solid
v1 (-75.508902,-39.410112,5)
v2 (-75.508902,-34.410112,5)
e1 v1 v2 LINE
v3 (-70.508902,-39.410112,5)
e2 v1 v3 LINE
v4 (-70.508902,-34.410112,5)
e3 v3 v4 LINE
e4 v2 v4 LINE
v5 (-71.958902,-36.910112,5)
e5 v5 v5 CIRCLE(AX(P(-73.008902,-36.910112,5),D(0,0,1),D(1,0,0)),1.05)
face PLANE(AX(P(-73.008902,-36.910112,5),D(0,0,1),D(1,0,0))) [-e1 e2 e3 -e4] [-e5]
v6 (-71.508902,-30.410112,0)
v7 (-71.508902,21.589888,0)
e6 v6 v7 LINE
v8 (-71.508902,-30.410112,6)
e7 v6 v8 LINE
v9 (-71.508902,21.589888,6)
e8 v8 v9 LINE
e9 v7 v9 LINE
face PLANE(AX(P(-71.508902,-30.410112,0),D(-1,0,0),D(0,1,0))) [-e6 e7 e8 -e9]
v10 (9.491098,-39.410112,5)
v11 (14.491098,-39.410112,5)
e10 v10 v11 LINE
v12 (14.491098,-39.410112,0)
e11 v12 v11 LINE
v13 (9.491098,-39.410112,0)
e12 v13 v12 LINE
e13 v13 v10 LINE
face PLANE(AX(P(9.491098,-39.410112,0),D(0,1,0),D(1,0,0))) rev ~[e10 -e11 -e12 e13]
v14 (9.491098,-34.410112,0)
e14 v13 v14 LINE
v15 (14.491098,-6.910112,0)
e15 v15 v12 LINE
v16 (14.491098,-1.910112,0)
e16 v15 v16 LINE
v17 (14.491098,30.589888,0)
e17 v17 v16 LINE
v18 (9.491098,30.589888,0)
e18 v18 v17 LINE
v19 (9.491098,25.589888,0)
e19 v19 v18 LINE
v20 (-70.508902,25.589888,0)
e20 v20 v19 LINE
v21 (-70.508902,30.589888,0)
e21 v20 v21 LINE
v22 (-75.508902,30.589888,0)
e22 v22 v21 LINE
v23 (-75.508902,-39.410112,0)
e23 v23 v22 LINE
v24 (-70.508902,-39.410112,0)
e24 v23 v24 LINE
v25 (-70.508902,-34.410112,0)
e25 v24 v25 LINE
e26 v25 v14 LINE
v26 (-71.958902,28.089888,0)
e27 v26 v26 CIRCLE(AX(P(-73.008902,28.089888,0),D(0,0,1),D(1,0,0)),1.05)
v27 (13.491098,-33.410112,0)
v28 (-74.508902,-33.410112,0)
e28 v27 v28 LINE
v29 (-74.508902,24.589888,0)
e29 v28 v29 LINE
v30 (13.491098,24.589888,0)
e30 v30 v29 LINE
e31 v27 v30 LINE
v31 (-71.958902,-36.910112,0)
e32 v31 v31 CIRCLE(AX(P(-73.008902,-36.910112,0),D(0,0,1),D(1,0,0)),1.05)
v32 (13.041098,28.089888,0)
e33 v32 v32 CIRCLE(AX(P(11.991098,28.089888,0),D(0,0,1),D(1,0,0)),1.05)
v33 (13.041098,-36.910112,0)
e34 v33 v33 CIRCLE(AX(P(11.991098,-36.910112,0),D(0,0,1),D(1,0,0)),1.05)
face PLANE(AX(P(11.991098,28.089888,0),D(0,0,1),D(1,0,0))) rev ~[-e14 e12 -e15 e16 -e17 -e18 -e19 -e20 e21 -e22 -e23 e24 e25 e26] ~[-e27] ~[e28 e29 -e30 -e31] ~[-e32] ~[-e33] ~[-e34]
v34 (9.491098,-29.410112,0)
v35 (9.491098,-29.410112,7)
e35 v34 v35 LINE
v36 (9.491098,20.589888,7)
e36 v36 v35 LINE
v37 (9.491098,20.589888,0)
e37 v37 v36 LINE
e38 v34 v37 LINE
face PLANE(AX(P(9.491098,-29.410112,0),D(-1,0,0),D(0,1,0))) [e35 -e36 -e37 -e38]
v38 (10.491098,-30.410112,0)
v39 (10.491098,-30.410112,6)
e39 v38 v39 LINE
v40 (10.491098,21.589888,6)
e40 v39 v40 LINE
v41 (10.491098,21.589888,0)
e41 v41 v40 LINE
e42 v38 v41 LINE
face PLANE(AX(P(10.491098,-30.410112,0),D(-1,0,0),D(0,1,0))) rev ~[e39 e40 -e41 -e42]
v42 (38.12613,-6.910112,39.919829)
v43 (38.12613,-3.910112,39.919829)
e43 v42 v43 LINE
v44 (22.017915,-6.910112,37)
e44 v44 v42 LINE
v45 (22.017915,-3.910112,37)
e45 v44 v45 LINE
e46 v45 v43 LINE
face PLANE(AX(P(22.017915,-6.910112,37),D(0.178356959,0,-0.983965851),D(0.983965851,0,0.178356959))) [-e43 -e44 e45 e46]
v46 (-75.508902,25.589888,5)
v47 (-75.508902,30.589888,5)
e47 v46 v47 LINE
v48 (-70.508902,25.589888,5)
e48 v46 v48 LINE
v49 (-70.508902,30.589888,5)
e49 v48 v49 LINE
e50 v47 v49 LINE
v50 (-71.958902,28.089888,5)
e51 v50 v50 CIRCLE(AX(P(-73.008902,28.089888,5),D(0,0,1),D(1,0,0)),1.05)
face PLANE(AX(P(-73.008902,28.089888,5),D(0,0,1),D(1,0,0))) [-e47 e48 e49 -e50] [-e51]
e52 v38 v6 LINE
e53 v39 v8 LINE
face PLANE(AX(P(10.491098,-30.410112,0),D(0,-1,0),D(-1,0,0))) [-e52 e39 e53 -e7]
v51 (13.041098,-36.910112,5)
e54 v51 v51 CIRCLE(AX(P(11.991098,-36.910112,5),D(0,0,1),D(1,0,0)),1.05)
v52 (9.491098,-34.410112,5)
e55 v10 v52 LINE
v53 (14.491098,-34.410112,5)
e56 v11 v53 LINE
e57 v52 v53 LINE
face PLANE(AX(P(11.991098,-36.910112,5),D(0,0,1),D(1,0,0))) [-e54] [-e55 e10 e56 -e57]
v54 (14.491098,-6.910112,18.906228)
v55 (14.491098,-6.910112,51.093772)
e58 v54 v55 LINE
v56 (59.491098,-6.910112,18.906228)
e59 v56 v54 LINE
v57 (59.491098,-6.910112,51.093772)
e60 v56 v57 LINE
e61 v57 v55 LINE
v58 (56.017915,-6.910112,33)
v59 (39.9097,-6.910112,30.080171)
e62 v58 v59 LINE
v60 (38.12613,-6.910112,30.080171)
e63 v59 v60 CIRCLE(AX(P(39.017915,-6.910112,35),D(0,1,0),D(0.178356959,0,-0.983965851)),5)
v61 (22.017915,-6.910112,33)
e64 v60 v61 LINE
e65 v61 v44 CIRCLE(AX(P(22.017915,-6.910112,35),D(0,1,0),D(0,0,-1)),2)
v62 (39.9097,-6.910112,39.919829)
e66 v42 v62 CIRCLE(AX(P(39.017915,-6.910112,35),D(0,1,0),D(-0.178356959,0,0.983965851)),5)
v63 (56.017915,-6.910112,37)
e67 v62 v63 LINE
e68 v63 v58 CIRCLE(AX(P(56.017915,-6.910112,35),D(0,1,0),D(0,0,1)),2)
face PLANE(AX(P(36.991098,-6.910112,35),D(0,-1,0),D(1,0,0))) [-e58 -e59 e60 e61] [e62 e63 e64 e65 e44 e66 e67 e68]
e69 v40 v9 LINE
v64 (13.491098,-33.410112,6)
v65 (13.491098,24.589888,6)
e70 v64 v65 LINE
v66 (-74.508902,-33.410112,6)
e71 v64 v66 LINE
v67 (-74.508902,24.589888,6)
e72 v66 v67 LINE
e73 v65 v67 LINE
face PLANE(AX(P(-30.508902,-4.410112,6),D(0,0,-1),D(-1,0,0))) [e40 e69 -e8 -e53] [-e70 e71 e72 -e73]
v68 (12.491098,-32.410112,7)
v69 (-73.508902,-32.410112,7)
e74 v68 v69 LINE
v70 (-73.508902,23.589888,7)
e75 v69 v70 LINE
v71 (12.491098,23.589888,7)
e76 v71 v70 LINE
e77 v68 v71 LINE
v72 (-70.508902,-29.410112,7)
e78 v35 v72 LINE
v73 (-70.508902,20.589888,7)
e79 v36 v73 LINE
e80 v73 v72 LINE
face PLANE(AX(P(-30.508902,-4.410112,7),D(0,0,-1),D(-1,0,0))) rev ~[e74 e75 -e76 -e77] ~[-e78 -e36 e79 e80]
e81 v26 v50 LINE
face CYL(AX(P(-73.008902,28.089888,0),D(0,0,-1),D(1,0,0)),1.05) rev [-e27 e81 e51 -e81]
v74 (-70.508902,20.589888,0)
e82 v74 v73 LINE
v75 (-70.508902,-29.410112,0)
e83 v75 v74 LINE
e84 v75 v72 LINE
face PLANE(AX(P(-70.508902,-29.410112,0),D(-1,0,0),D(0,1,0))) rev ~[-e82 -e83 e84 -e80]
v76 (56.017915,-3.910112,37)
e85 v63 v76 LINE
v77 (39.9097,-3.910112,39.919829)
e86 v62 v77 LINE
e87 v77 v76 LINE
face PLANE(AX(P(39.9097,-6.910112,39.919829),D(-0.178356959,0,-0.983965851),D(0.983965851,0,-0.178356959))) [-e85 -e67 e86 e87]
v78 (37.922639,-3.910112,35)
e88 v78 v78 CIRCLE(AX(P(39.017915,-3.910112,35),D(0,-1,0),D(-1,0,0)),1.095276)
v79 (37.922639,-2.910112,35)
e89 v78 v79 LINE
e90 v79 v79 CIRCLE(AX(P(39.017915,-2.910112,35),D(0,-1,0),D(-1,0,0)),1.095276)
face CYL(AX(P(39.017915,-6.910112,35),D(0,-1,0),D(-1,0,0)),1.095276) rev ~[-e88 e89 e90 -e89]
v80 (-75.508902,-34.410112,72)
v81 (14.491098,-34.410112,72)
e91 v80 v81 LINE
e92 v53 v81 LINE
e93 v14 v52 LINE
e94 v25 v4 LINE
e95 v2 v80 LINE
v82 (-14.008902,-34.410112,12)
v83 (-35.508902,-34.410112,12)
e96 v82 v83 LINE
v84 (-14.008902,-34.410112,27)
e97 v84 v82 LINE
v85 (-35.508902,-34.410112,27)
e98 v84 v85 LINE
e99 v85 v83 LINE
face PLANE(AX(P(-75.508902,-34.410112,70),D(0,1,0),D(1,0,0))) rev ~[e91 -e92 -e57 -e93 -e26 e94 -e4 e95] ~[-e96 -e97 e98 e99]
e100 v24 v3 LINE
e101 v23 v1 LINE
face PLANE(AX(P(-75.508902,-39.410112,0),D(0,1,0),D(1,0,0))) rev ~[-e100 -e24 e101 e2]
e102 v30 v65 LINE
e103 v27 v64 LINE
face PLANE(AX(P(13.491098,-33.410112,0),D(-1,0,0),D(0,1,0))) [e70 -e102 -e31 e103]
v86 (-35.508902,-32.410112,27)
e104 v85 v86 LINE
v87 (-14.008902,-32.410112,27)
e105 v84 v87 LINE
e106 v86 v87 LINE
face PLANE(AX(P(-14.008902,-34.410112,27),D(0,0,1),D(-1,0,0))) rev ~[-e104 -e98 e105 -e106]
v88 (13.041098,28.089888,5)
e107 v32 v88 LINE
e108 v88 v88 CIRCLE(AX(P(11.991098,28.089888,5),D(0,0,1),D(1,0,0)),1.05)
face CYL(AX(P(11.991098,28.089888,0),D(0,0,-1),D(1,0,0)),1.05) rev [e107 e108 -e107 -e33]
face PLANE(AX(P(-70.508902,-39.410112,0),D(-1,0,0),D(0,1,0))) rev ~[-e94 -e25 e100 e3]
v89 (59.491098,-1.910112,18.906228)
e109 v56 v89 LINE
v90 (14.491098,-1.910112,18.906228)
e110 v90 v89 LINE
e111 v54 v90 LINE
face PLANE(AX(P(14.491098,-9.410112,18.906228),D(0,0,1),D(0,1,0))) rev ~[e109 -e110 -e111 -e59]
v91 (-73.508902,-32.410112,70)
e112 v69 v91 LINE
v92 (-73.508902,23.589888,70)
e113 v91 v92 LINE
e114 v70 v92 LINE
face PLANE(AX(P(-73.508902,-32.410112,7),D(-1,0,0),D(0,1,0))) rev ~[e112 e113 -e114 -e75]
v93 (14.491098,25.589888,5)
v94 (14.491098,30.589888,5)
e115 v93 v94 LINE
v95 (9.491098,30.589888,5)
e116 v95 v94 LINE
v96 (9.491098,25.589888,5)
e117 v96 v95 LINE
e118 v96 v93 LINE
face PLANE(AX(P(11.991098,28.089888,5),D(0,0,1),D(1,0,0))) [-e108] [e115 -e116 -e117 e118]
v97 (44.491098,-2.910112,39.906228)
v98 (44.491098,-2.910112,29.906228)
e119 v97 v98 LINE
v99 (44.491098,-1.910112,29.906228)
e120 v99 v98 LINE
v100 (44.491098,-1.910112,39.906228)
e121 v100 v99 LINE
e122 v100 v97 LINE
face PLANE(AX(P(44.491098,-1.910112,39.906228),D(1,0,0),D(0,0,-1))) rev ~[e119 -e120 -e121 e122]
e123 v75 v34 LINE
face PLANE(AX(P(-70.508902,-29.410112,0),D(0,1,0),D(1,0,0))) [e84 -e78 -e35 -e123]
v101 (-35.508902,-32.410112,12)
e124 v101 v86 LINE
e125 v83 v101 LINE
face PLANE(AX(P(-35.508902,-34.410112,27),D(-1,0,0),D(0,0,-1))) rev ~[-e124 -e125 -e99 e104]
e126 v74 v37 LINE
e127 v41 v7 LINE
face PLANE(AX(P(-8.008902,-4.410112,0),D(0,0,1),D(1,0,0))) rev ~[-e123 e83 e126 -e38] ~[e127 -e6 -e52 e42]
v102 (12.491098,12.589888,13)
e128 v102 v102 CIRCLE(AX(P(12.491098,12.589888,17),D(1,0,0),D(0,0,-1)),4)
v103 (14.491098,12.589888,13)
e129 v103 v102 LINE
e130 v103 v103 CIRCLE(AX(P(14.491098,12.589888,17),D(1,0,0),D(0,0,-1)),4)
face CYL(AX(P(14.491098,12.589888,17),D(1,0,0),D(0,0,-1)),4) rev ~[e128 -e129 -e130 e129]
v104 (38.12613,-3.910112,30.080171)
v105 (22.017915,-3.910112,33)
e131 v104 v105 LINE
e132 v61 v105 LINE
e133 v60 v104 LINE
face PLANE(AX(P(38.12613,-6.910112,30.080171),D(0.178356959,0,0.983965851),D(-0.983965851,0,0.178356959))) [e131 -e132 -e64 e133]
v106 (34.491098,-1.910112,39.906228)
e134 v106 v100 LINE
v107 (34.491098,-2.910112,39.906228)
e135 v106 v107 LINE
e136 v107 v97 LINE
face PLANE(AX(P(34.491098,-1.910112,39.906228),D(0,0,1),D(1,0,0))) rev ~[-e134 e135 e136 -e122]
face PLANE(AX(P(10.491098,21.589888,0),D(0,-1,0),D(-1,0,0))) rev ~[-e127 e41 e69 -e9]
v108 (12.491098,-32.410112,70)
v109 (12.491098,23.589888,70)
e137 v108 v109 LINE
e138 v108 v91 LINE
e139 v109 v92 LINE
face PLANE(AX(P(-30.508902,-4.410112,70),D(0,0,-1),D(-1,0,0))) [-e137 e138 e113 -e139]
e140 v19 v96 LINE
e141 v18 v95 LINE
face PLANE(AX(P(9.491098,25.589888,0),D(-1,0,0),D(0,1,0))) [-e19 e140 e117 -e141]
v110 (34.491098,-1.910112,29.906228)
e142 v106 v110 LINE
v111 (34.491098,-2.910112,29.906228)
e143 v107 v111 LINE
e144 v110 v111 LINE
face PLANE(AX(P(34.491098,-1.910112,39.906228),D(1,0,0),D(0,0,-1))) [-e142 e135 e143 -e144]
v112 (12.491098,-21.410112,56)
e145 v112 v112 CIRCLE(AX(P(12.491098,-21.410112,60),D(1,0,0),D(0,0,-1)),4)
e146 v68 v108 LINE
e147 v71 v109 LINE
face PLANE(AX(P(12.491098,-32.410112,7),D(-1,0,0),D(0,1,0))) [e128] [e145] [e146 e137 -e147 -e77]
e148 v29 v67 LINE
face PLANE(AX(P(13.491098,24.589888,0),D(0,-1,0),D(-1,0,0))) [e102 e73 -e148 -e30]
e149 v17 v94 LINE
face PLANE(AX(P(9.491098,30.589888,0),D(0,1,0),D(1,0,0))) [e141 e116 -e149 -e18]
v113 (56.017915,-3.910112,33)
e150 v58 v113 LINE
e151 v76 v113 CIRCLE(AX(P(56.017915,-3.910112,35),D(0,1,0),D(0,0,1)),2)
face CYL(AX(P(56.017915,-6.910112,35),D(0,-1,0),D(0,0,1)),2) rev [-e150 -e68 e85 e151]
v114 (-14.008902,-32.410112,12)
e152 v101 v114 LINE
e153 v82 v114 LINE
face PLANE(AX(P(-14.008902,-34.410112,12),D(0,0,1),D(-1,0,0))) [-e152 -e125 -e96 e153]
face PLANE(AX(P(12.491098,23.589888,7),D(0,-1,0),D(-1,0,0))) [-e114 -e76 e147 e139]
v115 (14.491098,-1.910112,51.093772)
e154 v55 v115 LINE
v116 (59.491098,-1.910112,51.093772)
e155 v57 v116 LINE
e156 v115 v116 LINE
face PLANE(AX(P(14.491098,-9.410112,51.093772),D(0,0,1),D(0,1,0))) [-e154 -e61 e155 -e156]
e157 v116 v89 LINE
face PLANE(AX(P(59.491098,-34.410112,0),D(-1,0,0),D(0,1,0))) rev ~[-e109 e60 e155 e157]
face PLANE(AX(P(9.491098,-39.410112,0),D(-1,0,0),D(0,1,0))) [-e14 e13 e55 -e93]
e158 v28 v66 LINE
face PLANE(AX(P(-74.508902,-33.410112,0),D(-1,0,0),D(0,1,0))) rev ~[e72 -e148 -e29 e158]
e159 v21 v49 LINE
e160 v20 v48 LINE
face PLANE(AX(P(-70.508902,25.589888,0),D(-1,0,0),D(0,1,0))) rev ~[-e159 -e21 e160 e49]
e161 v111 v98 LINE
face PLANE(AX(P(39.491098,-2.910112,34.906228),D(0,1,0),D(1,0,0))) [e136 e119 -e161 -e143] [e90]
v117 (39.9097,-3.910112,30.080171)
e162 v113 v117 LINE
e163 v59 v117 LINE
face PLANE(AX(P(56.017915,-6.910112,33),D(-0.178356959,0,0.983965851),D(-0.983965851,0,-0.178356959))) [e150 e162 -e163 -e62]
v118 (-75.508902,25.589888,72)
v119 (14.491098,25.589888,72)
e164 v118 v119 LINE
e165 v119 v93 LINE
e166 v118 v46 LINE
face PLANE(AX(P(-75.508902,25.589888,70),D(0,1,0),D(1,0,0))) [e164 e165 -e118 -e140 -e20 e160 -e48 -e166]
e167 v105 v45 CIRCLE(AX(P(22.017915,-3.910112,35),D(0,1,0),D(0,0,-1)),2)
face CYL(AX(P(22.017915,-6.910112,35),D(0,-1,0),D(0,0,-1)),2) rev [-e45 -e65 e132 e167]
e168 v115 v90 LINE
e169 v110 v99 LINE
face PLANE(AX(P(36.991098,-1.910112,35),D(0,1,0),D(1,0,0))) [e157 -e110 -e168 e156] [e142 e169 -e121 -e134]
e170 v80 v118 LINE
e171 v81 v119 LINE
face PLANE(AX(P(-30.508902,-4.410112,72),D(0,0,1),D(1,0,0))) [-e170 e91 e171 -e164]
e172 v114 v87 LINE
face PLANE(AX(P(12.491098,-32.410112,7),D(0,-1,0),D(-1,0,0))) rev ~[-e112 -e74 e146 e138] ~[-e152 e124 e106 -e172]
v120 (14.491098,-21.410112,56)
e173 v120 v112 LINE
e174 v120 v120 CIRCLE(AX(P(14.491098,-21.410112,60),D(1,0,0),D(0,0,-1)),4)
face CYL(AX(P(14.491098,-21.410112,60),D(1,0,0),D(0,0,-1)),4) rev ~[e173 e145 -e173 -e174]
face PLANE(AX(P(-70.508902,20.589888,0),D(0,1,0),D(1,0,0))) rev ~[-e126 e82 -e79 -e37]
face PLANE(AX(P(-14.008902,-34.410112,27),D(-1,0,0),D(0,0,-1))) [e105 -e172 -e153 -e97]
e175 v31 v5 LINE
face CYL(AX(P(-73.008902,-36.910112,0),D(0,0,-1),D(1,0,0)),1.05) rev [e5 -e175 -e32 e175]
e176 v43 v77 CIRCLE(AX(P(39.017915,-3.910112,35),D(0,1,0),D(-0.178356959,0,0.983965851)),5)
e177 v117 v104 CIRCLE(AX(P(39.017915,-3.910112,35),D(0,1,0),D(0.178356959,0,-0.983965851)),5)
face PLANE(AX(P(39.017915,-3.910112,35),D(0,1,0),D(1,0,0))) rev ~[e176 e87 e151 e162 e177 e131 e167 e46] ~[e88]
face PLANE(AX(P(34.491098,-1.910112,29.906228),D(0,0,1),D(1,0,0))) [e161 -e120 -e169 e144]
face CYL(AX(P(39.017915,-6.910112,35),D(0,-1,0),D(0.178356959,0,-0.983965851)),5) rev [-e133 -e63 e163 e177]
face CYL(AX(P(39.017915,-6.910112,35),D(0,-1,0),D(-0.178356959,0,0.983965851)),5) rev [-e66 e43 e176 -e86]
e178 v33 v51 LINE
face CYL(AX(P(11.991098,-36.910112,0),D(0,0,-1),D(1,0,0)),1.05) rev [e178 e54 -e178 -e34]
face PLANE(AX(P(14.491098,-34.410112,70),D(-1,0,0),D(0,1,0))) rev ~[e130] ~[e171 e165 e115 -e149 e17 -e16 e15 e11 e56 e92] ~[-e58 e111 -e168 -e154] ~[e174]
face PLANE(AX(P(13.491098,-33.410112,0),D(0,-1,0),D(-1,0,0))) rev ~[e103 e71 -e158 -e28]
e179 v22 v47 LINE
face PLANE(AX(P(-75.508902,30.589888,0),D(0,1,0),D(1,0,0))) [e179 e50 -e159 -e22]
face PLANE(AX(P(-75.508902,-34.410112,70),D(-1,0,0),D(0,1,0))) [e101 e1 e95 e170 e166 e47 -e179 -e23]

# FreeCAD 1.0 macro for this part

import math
import FreeCAD as App
import Part
import Sketcher

V = App.Vector
Q = App.Units.Quantity

doc = App.newDocument("Part")
body = doc.addObject("PartDesign::Body", "Body")

sketch1 = body.newObject("Sketcher::SketchObject", "Sketch")
sketch1.AttachmentSupport = (doc.getObject("XY_Plane"), [""])
sketch1.MapMode = "FlatFace"
sketch1.addGeometry(Part.LineSegment(V(-75.508902, 25.589888, 0), V(-75.508902, -34.410112, 0)), False)
sketch1.addGeometry(Part.LineSegment(V(-75.508902, -34.410112, 0), V(59.491098, -34.410112, 0)), False)
sketch1.addGeometry(Part.LineSegment(V(59.491098, -34.410112, 0), V(59.491098, 25.589888, 0)), False)
sketch1.addGeometry(Part.LineSegment(V(59.491098, 25.589888, 0), V(-75.508902, 25.589888, 0)), False)
sketch1.addConstraint(Sketcher.Constraint("Coincident", 0, 2, 1, 1))
sketch1.addConstraint(Sketcher.Constraint("Coincident", 1, 2, 2, 1))
sketch1.addConstraint(Sketcher.Constraint("Coincident", 2, 2, 3, 1))
sketch1.addConstraint(Sketcher.Constraint("Coincident", 3, 2, 0, 1))
sketch1.addConstraint(Sketcher.Constraint("Vertical", 0))
sketch1.addConstraint(Sketcher.Constraint("Horizontal", 1))
sketch1.addConstraint(Sketcher.Constraint("Vertical", 2))
sketch1.addConstraint(Sketcher.Constraint("Horizontal", 3))
sketch1.addConstraint(Sketcher.Constraint("DistanceX", 1, 1, 1, 2, Q("135 mm")))
sketch1.addConstraint(Sketcher.Constraint("DistanceY", 0, 2, 0, 1, Q("60 mm")))
sketch1.addConstraint(Sketcher.Constraint("DistanceX", 0, 2, -1, 1, Q("75.508902 mm")))
sketch1.addConstraint(Sketcher.Constraint("DistanceY", 0, 2, -1, 1, Q("34.410112 mm")))
pad1 = body.newObject("PartDesign::Pad", "Pad")
pad1.Profile = sketch1
pad1.Length = 70

sketch2 = body.newObject("Sketcher::SketchObject", "Sketch001")
sketch2.AttachmentSupport = (doc.getObject("XZ_Plane"), [""])
sketch2.MapMode = "FlatFace"
sketch2.AttachmentOffset = App.Placement(V(0, 0, -25.589888), App.Rotation())
sketch2.addGeometry(Part.LineSegment(V(14.491098, 0, 0), V(14.491098, 70, 0)), False)
sketch2.addGeometry(Part.LineSegment(V(14.491098, 70, 0), V(59.491098, 70, 0)), False)
sketch2.addGeometry(Part.LineSegment(V(59.491098, 70, 0), V(59.491098, 0, 0)), False)
sketch2.addGeometry(Part.LineSegment(V(59.491098, 0, 0), V(14.491098, 0, 0)), False)
sketch2.addConstraint(Sketcher.Constraint("Coincident", 0, 2, 1, 1))
sketch2.addConstraint(Sketcher.Constraint("Coincident", 1, 2, 2, 1))
sketch2.addConstraint(Sketcher.Constraint("Coincident", 2, 2, 3, 1))
sketch2.addConstraint(Sketcher.Constraint("Coincident", 3, 2, 0, 1))
sketch2.addConstraint(Sketcher.Constraint("Vertical", 0))
sketch2.addConstraint(Sketcher.Constraint("Horizontal", 1))
sketch2.addConstraint(Sketcher.Constraint("Vertical", 2))
sketch2.addConstraint(Sketcher.Constraint("Horizontal", 3))
sketch2.addConstraint(Sketcher.Constraint("PointOnObject", 2, 2, -1))
sketch2.addConstraint(Sketcher.Constraint("DistanceX", 1, 1, 1, 2, Q("45 mm")))
sketch2.addConstraint(Sketcher.Constraint("DistanceY", 0, 1, 0, 2, Q("70 mm")))
sketch2.addConstraint(Sketcher.Constraint("DistanceX", -1, 1, 0, 2, Q("14.491098 mm")))
pocket1 = body.newObject("PartDesign::Pocket", "Pocket")
pocket1.Profile = sketch2
pocket1.Length = 27.5
pocket1.Reversed = True

sketch3 = body.newObject("Sketcher::SketchObject", "Sketch002")
sketch3.AttachmentSupport = (doc.getObject("XZ_Plane"), [""])
sketch3.MapMode = "FlatFace"
sketch3.AttachmentOffset = App.Placement(V(0, 0, 34.410112), App.Rotation())
sketch3.addGeometry(Part.LineSegment(V(14.491098, 70, 0), V(14.491098, 0, 0)), False)
sketch3.addGeometry(Part.LineSegment(V(14.491098, 0, 0), V(59.491098, 0, 0)), False)
sketch3.addGeometry(Part.LineSegment(V(59.491098, 0, 0), V(59.491098, 70, 0)), False)
sketch3.addGeometry(Part.LineSegment(V(59.491098, 70, 0), V(14.491098, 70, 0)), False)
sketch3.addConstraint(Sketcher.Constraint("Coincident", 0, 2, 1, 1))
sketch3.addConstraint(Sketcher.Constraint("Coincident", 1, 2, 2, 1))
sketch3.addConstraint(Sketcher.Constraint("Coincident", 2, 2, 3, 1))
sketch3.addConstraint(Sketcher.Constraint("Coincident", 3, 2, 0, 1))
sketch3.addConstraint(Sketcher.Constraint("Vertical", 0))
sketch3.addConstraint(Sketcher.Constraint("Horizontal", 1))
sketch3.addConstraint(Sketcher.Constraint("Vertical", 2))
sketch3.addConstraint(Sketcher.Constraint("Horizontal", 3))
sketch3.addConstraint(Sketcher.Constraint("PointOnObject", 0, 2, -1))
sketch3.addConstraint(Sketcher.Constraint("DistanceX", 1, 1, 1, 2, Q("45 mm")))
sketch3.addConstraint(Sketcher.Constraint("DistanceY", 0, 2, 0, 1, Q("70 mm")))
sketch3.addConstraint(Sketcher.Constraint("DistanceX", -1, 1, 0, 2, Q("14.491098 mm")))
pocket2 = body.newObject("PartDesign::Pocket", "Pocket001")
pocket2.Profile = sketch3
pocket2.Length = 27.5

sketch4 = body.newObject("Sketcher::SketchObject", "Sketch003")
sketch4.AttachmentSupport = (doc.getObject("XY_Plane"), [""])
sketch4.MapMode = "FlatFace"
sketch4.addGeometry(Part.LineSegment(V(-70.508902, 20.589888, 0), V(-70.508902, -29.410112, 0)), False)
sketch4.addGeometry(Part.LineSegment(V(-70.508902, -29.410112, 0), V(9.491098, -29.410112, 0)), False)
sketch4.addGeometry(Part.LineSegment(V(9.491098, -29.410112, 0), V(9.491098, 20.589888, 0)), False)
sketch4.addGeometry(Part.LineSegment(V(9.491098, 20.589888, 0), V(-70.508902, 20.589888, 0)), False)
sketch4.addConstraint(Sketcher.Constraint("Coincident", 0, 2, 1, 1))
sketch4.addConstraint(Sketcher.Constraint("Coincident", 1, 2, 2, 1))
sketch4.addConstraint(Sketcher.Constraint("Coincident", 2, 2, 3, 1))
sketch4.addConstraint(Sketcher.Constraint("Coincident", 3, 2, 0, 1))
sketch4.addConstraint(Sketcher.Constraint("Vertical", 0))
sketch4.addConstraint(Sketcher.Constraint("Horizontal", 1))
sketch4.addConstraint(Sketcher.Constraint("Vertical", 2))
sketch4.addConstraint(Sketcher.Constraint("Horizontal", 3))
sketch4.addConstraint(Sketcher.Constraint("DistanceX", 1, 1, 1, 2, Q("80 mm")))
sketch4.addConstraint(Sketcher.Constraint("DistanceY", 0, 2, 0, 1, Q("50 mm")))
sketch4.addConstraint(Sketcher.Constraint("DistanceX", 0, 2, -1, 1, Q("70.508902 mm")))
sketch4.addConstraint(Sketcher.Constraint("DistanceY", 0, 2, -1, 1, Q("29.410112 mm")))
pocket3 = body.newObject("PartDesign::Pocket", "Pocket002")
pocket3.Profile = sketch4
pocket3.Length = 75
pocket3.Reversed = True

sketch5 = body.newObject("Sketcher::SketchObject", "Sketch004")
sketch5.AttachmentSupport = (doc.getObject("XY_Plane"), [""])
sketch5.MapMode = "FlatFace"
sketch5.addGeometry(Part.LineSegment(V(13.491098, 24.589888, 0), V(13.491098, -33.410112, 0)), False)
sketch5.addGeometry(Part.LineSegment(V(13.491098, -33.410112, 0), V(-74.508902, -33.410112, 0)), False)
sketch5.addGeometry(Part.LineSegment(V(-74.508902, -33.410112, 0), V(-74.508902, 24.589888, 0)), False)
sketch5.addGeometry(Part.LineSegment(V(-74.508902, 24.589888, 0), V(13.491098, 24.589888, 0)), False)
sketch5.addGeometry(Part.LineSegment(V(-71.508902, -30.410112, 0), V(10.491098, -30.410112, 0)), False)
sketch5.addGeometry(Part.LineSegment(V(10.491098, -30.410112, 0), V(10.491098, 21.589888, 0)), False)
sketch5.addGeometry(Part.LineSegment(V(10.491098, 21.589888, 0), V(-71.508902, 21.589888, 0)), False)
sketch5.addGeometry(Part.LineSegment(V(-71.508902, 21.589888, 0), V(-71.508902, -30.410112, 0)), False)
sketch5.addConstraint(Sketcher.Constraint("Coincident", 0, 2, 1, 1))
sketch5.addConstraint(Sketcher.Constraint("Coincident", 1, 2, 2, 1))
sketch5.addConstraint(Sketcher.Constraint("Coincident", 2, 2, 3, 1))
sketch5.addConstraint(Sketcher.Constraint("Coincident", 3, 2, 0, 1))
sketch5.addConstraint(Sketcher.Constraint("Coincident", 4, 2, 5, 1))
sketch5.addConstraint(Sketcher.Constraint("Coincident", 5, 2, 6, 1))
sketch5.addConstraint(Sketcher.Constraint("Coincident", 6, 2, 7, 1))
sketch5.addConstraint(Sketcher.Constraint("Coincident", 7, 2, 4, 1))
sketch5.addConstraint(Sketcher.Constraint("Vertical", 0))
sketch5.addConstraint(Sketcher.Constraint("Horizontal", 1))
sketch5.addConstraint(Sketcher.Constraint("Vertical", 2))
sketch5.addConstraint(Sketcher.Constraint("Horizontal", 3))
sketch5.addConstraint(Sketcher.Constraint("Horizontal", 4))
sketch5.addConstraint(Sketcher.Constraint("Vertical", 5))
sketch5.addConstraint(Sketcher.Constraint("Horizontal", 6))
sketch5.addConstraint(Sketcher.Constraint("Vertical", 7))
sketch5.addConstraint(Sketcher.Constraint("DistanceX", 1, 2, 1, 1, Q("88 mm")))
sketch5.addConstraint(Sketcher.Constraint("DistanceX", 4, 1, 4, 2, Q("82 mm")))
sketch5.addConstraint(Sketcher.Constraint("DistanceY", 0, 2, 0, 1, Q("58 mm")))
sketch5.addConstraint(Sketcher.Constraint("DistanceY", 5, 1, 5, 2, Q("52 mm")))
sketch5.addConstraint(Sketcher.Constraint("DistanceX", 4, 2, 0, 2, Q("3 mm")))
sketch5.addConstraint(Sketcher.Constraint("DistanceY", 0, 2, 4, 2, Q("3 mm")))
sketch5.addConstraint(Sketcher.Constraint("DistanceX", -1, 1, 0, 2, Q("13.491098 mm")))
sketch5.addConstraint(Sketcher.Constraint("DistanceY", 0, 2, -1, 1, Q("33.410112 mm")))
pocket4 = body.newObject("PartDesign::Pocket", "Pocket003")
pocket4.Profile = sketch5
pocket4.Length = 6
pocket4.Reversed = True

sketch6 = body.newObject("Sketcher::SketchObject", "Sketch005")
sketch6.AttachmentSupport = (doc.getObject("XZ_Plane"), [""])
sketch6.MapMode = "FlatFace"
sketch6.AttachmentOffset = App.Placement(V(0, 0, 34.410112), App.Rotation())
sketch6.addGeometry(Part.LineSegment(V(-14.008902, 12, 0), V(-14.008902, 27, 0)), False)
sketch6.addGeometry(Part.LineSegment(V(-14.008902, 27, 0), V(-35.508902, 27, 0)), False)
sketch6.addGeometry(Part.LineSegment(V(-35.508902, 27, 0), V(-35.508902, 12, 0)), False)
sketch6.addGeometry(Part.LineSegment(V(-35.508902, 12, 0), V(-14.008902, 12, 0)), False)
sketch6.addConstraint(Sketcher.Constraint("Coincident", 0, 2, 1, 1))
sketch6.addConstraint(Sketcher.Constraint("Coincident", 1, 2, 2, 1))
sketch6.addConstraint(Sketcher.Constraint("Coincident", 2, 2, 3, 1))
sketch6.addConstraint(Sketcher.Constraint("Coincident", 3, 2, 0, 1))
sketch6.addConstraint(Sketcher.Constraint("Vertical", 0))
sketch6.addConstraint(Sketcher.Constraint("Horizontal", 1))
sketch6.addConstraint(Sketcher.Constraint("Vertical", 2))
sketch6.addConstraint(Sketcher.Constraint("Horizontal", 3))
sketch6.addConstraint(Sketcher.Constraint("DistanceY", 0, 1, 0, 2, Q("15 mm")))
sketch6.addConstraint(Sketcher.Constraint("DistanceX", 1, 2, 1, 1, Q("21.5 mm")))
sketch6.addConstraint(Sketcher.Constraint("DistanceY", -1, 1, 0, 2, Q("27 mm")))
sketch6.addConstraint(Sketcher.Constraint("DistanceX", 0, 2, -1, 1, Q("14.008902 mm")))
pocket5 = body.newObject("PartDesign::Pocket", "Pocket004")
pocket5.Profile = sketch6
pocket5.Length = 10

sketch7 = body.newObject("Sketcher::SketchObject", "Sketch006")
sketch7.AttachmentSupport = (doc.getObject("YZ_Plane"), [""])
sketch7.MapMode = "FlatFace"
sketch7.AttachmentOffset = App.Placement(V(0, 0, 14.491098), App.Rotation())
sketch7.addGeometry(Part.LineSegment(V(0.589888, 70, 0), V(-9.410112, 70, 0)), False)
sketch7.addGeometry(Part.LineSegment(V(-9.410112, 70, 0), V(-9.410112, 51.093772, 0)), False)
sketch7.addGeometry(Part.LineSegment(V(-9.410112, 51.093772, 0), V(0.589888, 51.093772, 0)), False)
sketch7.addGeometry(Part.LineSegment(V(0.589888, 51.093772, 0), V(0.589888, 70, 0)), False)
sketch7.addGeometry(Part.LineSegment(V(0.589888, 18.906228, 0), V(-9.410112, 18.906228, 0)), False)
sketch7.addGeometry(Part.LineSegment(V(-9.410112, 18.906228, 0), V(-9.410112, 0, 0)), False)
sketch7.addGeometry(Part.LineSegment(V(-9.410112, 0, 0), V(0.589888, 0, 0)), False)
sketch7.addGeometry(Part.LineSegment(V(0.589888, 0, 0), V(0.589888, 18.906228, 0)), False)
sketch7.addConstraint(Sketcher.Constraint("Coincident", 0, 2, 1, 1))
sketch7.addConstraint(Sketcher.Constraint("Coincident", 1, 2, 2, 1))
sketch7.addConstraint(Sketcher.Constraint("Coincident", 2, 2, 3, 1))
sketch7.addConstraint(Sketcher.Constraint("Coincident", 3, 2, 0, 1))
sketch7.addConstraint(Sketcher.Constraint("Coincident", 4, 2, 5, 1))
sketch7.addConstraint(Sketcher.Constraint("Coincident", 5, 2, 6, 1))
sketch7.addConstraint(Sketcher.Constraint("Coincident", 6, 2, 7, 1))
sketch7.addConstraint(Sketcher.Constraint("Coincident", 7, 2, 4, 1))
sketch7.addConstraint(Sketcher.Constraint("Horizontal", 0))
sketch7.addConstraint(Sketcher.Constraint("Vertical", 1))
sketch7.addConstraint(Sketcher.Constraint("Horizontal", 2))
sketch7.addConstraint(Sketcher.Constraint("Vertical", 3))
sketch7.addConstraint(Sketcher.Constraint("Horizontal", 4))
sketch7.addConstraint(Sketcher.Constraint("Vertical", 5))
sketch7.addConstraint(Sketcher.Constraint("Horizontal", 6))
sketch7.addConstraint(Sketcher.Constraint("Vertical", 7))
sketch7.addConstraint(Sketcher.Constraint("PointOnObject", 5, 2, -1))
sketch7.addConstraint(Sketcher.Constraint("Vertical", 1, 2, 4, 2))
sketch7.addConstraint(Sketcher.Constraint("Vertical", 3, 2, 6, 2))
sketch7.addConstraint(Sketcher.Constraint("Equal", 3, 5))
sketch7.addConstraint(Sketcher.Constraint("DistanceX", 0, 2, 0, 1, Q("10 mm")))
sketch7.addConstraint(Sketcher.Constraint("DistanceY", -1, 1, 0, 2, Q("70 mm")))
sketch7.addConstraint(Sketcher.Constraint("DistanceY", 1, 2, 1, 1, Q("18.906228 mm")))
sketch7.addConstraint(Sketcher.Constraint("DistanceX", 0, 2, -1, 1, Q("9.410112 mm")))
pocket6 = body.newObject("PartDesign::Pocket", "Pocket005")
pocket6.Profile = sketch7
pocket6.Length = 45
pocket6.Reversed = True

sketch8 = body.newObject("Sketcher::SketchObject", "Sketch007")
sketch8.AttachmentSupport = (doc.getObject("XZ_Plane"), [""])
sketch8.MapMode = "FlatFace"
sketch8.AttachmentOffset = App.Placement(V(0, 0, 6.910112), App.Rotation())
sketch8.addGeometry(Part.LineSegment(V(22.017915, 33, 0), V(38.12613, 30.080171, 0)), False)
sketch8.addGeometry(Part.ArcOfCircle(Part.Circle(V(39.017915, 35, 0), V(0, 0, 1), 5), math.radians(-100.274072), math.radians(-79.725928)), False)
sketch8.addGeometry(Part.LineSegment(V(39.9097, 30.080171, 0), V(56.017915, 33, 0)), False)
sketch8.addGeometry(Part.ArcOfCircle(Part.Circle(V(56.017915, 35, 0), V(0, 0, 1), 2), math.radians(-90), math.radians(90)), False)
sketch8.addGeometry(Part.LineSegment(V(56.017915, 37, 0), V(39.9097, 39.919829, 0)), False)
sketch8.addGeometry(Part.ArcOfCircle(Part.Circle(V(39.017915, 35, 0), V(0, 0, 1), 5), math.radians(79.725928), math.radians(100.274072)), False)
sketch8.addGeometry(Part.LineSegment(V(38.12613, 39.919829, 0), V(22.017915, 37, 0)), False)
sketch8.addGeometry(Part.ArcOfCircle(Part.Circle(V(22.017915, 35, 0), V(0, 0, 1), 2), math.radians(90), math.radians(270)), False)
sketch8.addConstraint(Sketcher.Constraint("Tangent", 0, 2, 1, 1))
sketch8.addConstraint(Sketcher.Constraint("Tangent", 1, 2, 2, 1))
sketch8.addConstraint(Sketcher.Constraint("Coincident", 2, 2, 3, 1))
sketch8.addConstraint(Sketcher.Constraint("Coincident", 3, 2, 4, 1))
sketch8.addConstraint(Sketcher.Constraint("Tangent", 4, 2, 5, 1))
sketch8.addConstraint(Sketcher.Constraint("Tangent", 5, 2, 6, 1))
sketch8.addConstraint(Sketcher.Constraint("Coincident", 6, 2, 7, 1))
sketch8.addConstraint(Sketcher.Constraint("Coincident", 7, 2, 0, 1))
sketch8.addConstraint(Sketcher.Constraint("Coincident", 5, 3, 1, 3))
sketch8.addConstraint(Sketcher.Constraint("Equal", 1, 5))
sketch8.addConstraint(Sketcher.Constraint("Equal", 3, 7))
sketch8.addConstraint(Sketcher.Constraint("Parallel", 0, 4))
sketch8.addConstraint(Sketcher.Constraint("Parallel", 2, 6))
sketch8.addConstraint(Sketcher.Constraint("Horizontal", 1, 3, 3, 3))
sketch8.addConstraint(Sketcher.Constraint("Horizontal", 5, 3, 7, 3))
sketch8.addConstraint(Sketcher.Constraint("Horizontal", 0, 2, 1, 2))
sketch8.addConstraint(Sketcher.Constraint("Vertical", 3, 3, 2, 2))
sketch8.addConstraint(Sketcher.Constraint("Vertical", 7, 3, 6, 2))
sketch8.addConstraint(Sketcher.Constraint("Radius", 1, Q("5 mm")))
sketch8.addConstraint(Sketcher.Constraint("Radius", 3, Q("2 mm")))
sketch8.addConstraint(Sketcher.Constraint("DistanceY", -1, 1, 1, 3, Q("35 mm")))
sketch8.addConstraint(Sketcher.Constraint("DistanceX", 1, 3, 3, 3, Q("17 mm")))
sketch8.addConstraint(Sketcher.Constraint("DistanceX", -1, 1, 1, 2, Q("39.9097 mm")))
pocket7 = body.newObject("PartDesign::Pocket", "Pocket006")
pocket7.Profile = sketch8
pocket7.Length = 3

sketch9 = body.newObject("Sketcher::SketchObject", "Sketch008")
sketch9.AttachmentSupport = (doc.getObject("XZ_Plane"), [""])
sketch9.MapMode = "FlatFace"
sketch9.AttachmentOffset = App.Placement(V(0, 0, 1.910112), App.Rotation())
sketch9.addGeometry(Part.LineSegment(V(34.491098, 29.906228, 0), V(34.491098, 39.906228, 0)), False)
sketch9.addGeometry(Part.LineSegment(V(34.491098, 39.906228, 0), V(44.491098, 39.906228, 0)), False)
sketch9.addGeometry(Part.LineSegment(V(44.491098, 39.906228, 0), V(44.491098, 29.906228, 0)), False)
sketch9.addGeometry(Part.LineSegment(V(44.491098, 29.906228, 0), V(34.491098, 29.906228, 0)), False)
sketch9.addConstraint(Sketcher.Constraint("Coincident", 0, 2, 1, 1))
sketch9.addConstraint(Sketcher.Constraint("Coincident", 1, 2, 2, 1))
sketch9.addConstraint(Sketcher.Constraint("Coincident", 2, 2, 3, 1))
sketch9.addConstraint(Sketcher.Constraint("Coincident", 3, 2, 0, 1))
sketch9.addConstraint(Sketcher.Constraint("Vertical", 0))
sketch9.addConstraint(Sketcher.Constraint("Horizontal", 1))
sketch9.addConstraint(Sketcher.Constraint("Vertical", 2))
sketch9.addConstraint(Sketcher.Constraint("Horizontal", 3))
sketch9.addConstraint(Sketcher.Constraint("Equal", 3, 0))
sketch9.addConstraint(Sketcher.Constraint("DistanceX", 1, 1, 1, 2, Q("10 mm")))
sketch9.addConstraint(Sketcher.Constraint("DistanceY", -1, 1, 0, 2, Q("39.906228 mm")))
sketch9.addConstraint(Sketcher.Constraint("DistanceX", -1, 1, 0, 2, Q("34.491098 mm")))
pocket8 = body.newObject("PartDesign::Pocket", "Pocket007")
pocket8.Profile = sketch9
pocket8.Length = 1
pocket8.Reversed = True

sketch10 = body.newObject("Sketcher::SketchObject", "Sketch009")
sketch10.AttachmentSupport = (doc.getObject("XZ_Plane"), [""])
sketch10.MapMode = "FlatFace"
sketch10.AttachmentOffset = App.Placement(V(0, 0, 6.910112), App.Rotation())
sketch10.addGeometry(Part.Circle(V(39.017915, 35, 0), V(0, 0, 1), 1.095276), False)
sketch10.addConstraint(Sketcher.Constraint("DistanceY", -1, 1, 0, 3, Q("35 mm")))
sketch10.addConstraint(Sketcher.Constraint("Diameter", 0, Q("2.190552 mm")))
sketch10.addConstraint(Sketcher.Constraint("DistanceX", -1, 1, 0, 3, Q("39.017915 mm")))
pocket9 = body.newObject("PartDesign::Pocket", "Pocket008")
pocket9.Profile = sketch10
pocket9.Length = 7

sketch11 = body.newObject("Sketcher::SketchObject", "Sketch010")
sketch11.AttachmentSupport = (doc.getObject("XY_Plane"), [""])
sketch11.MapMode = "FlatFace"
sketch11.addGeometry(Part.LineSegment(V(9.491098, 30.589888, 0), V(9.491098, 25.589888, 0)), False)
sketch11.addGeometry(Part.LineSegment(V(9.491098, 25.589888, 0), V(14.491098, 25.589888, 0)), False)
sketch11.addGeometry(Part.LineSegment(V(14.491098, 25.589888, 0), V(14.491098, 30.589888, 0)), False)
sketch11.addGeometry(Part.LineSegment(V(14.491098, 30.589888, 0), V(9.491098, 30.589888, 0)), False)
sketch11.addGeometry(Part.Circle(V(11.991098, 28.089888, 0), V(0, 0, 1), 1.05), False)
sketch11.addGeometry(Part.LineSegment(V(-75.508902, 30.589888, 0), V(-75.508902, 25.589888, 0)), False)
sketch11.addGeometry(Part.LineSegment(V(-75.508902, 25.589888, 0), V(-70.508902, 25.589888, 0)), False)
sketch11.addGeometry(Part.LineSegment(V(-70.508902, 25.589888, 0), V(-70.508902, 30.589888, 0)), False)
sketch11.addGeometry(Part.LineSegment(V(-70.508902, 30.589888, 0), V(-75.508902, 30.589888, 0)), False)
sketch11.addGeometry(Part.Circle(V(-73.008902, 28.089888, 0), V(0, 0, 1), 1.05), False)
sketch11.addGeometry(Part.LineSegment(V(-75.508902, -34.410112, 0), V(-75.508902, -39.410112, 0)), False)
sketch11.addGeometry(Part.LineSegment(V(-75.508902, -39.410112, 0), V(-70.508902, -39.410112, 0)), False)
sketch11.addGeometry(Part.LineSegment(V(-70.508902, -39.410112, 0), V(-70.508902, -34.410112, 0)), False)
sketch11.addGeometry(Part.LineSegment(V(-70.508902, -34.410112, 0), V(-75.508902, -34.410112, 0)), False)
sketch11.addGeometry(Part.Circle(V(-73.008902, -36.910112, 0), V(0, 0, 1), 1.05), False)
sketch11.addGeometry(Part.LineSegment(V(9.491098, -34.410112, 0), V(9.491098, -39.410112, 0)), False)
sketch11.addGeometry(Part.LineSegment(V(9.491098, -39.410112, 0), V(14.491098, -39.410112, 0)), False)
sketch11.addGeometry(Part.LineSegment(V(14.491098, -39.410112, 0), V(14.491098, -34.410112, 0)), False)
sketch11.addGeometry(Part.LineSegment(V(14.491098, -34.410112, 0), V(9.491098, -34.410112, 0)), False)
sketch11.addGeometry(Part.Circle(V(11.991098, -36.910112, 0), V(0, 0, 1), 1.05), False)
sketch11.addConstraint(Sketcher.Constraint("Coincident", 0, 2, 1, 1))
sketch11.addConstraint(Sketcher.Constraint("Coincident", 1, 2, 2, 1))
sketch11.addConstraint(Sketcher.Constraint("Coincident", 2, 2, 3, 1))
sketch11.addConstraint(Sketcher.Constraint("Coincident", 3, 2, 0, 1))
sketch11.addConstraint(Sketcher.Constraint("Coincident", 5, 2, 6, 1))
sketch11.addConstraint(Sketcher.Constraint("Coincident", 6, 2, 7, 1))
sketch11.addConstraint(Sketcher.Constraint("Coincident", 7, 2, 8, 1))
sketch11.addConstraint(Sketcher.Constraint("Coincident", 8, 2, 5, 1))
sketch11.addConstraint(Sketcher.Constraint("Coincident", 10, 2, 11, 1))
sketch11.addConstraint(Sketcher.Constraint("Coincident", 11, 2, 12, 1))
sketch11.addConstraint(Sketcher.Constraint("Coincident", 12, 2, 13, 1))
sketch11.addConstraint(Sketcher.Constraint("Coincident", 13, 2, 10, 1))
sketch11.addConstraint(Sketcher.Constraint("Coincident", 15, 2, 16, 1))
sketch11.addConstraint(Sketcher.Constraint("Coincident", 16, 2, 17, 1))
sketch11.addConstraint(Sketcher.Constraint("Coincident", 17, 2, 18, 1))
sketch11.addConstraint(Sketcher.Constraint("Coincident", 18, 2, 15, 1))
sketch11.addConstraint(Sketcher.Constraint("Vertical", 0))
sketch11.addConstraint(Sketcher.Constraint("Horizontal", 1))
sketch11.addConstraint(Sketcher.Constraint("Vertical", 2))
sketch11.addConstraint(Sketcher.Constraint("Horizontal", 3))
sketch11.addConstraint(Sketcher.Constraint("Vertical", 5))
sketch11.addConstraint(Sketcher.Constraint("Horizontal", 6))
sketch11.addConstraint(Sketcher.Constraint("Vertical", 7))
sketch11.addConstraint(Sketcher.Constraint("Horizontal", 8))
sketch11.addConstraint(Sketcher.Constraint("Vertical", 10))
sketch11.addConstraint(Sketcher.Constraint("Horizontal", 11))
sketch11.addConstraint(Sketcher.Constraint("Vertical", 12))
sketch11.addConstraint(Sketcher.Constraint("Horizontal", 13))
sketch11.addConstraint(Sketcher.Constraint("Vertical", 15))
sketch11.addConstraint(Sketcher.Constraint("Horizontal", 16))
sketch11.addConstraint(Sketcher.Constraint("Vertical", 17))
sketch11.addConstraint(Sketcher.Constraint("Horizontal", 18))
sketch11.addConstraint(Sketcher.Constraint("Equal", 4, 9))
sketch11.addConstraint(Sketcher.Constraint("Equal", 9, 14))
sketch11.addConstraint(Sketcher.Constraint("Equal", 14, 19))
sketch11.addConstraint(Sketcher.Constraint("Horizontal", 4, 3, 9, 3))
sketch11.addConstraint(Sketcher.Constraint("Horizontal", 14, 3, 19, 3))
sketch11.addConstraint(Sketcher.Constraint("Horizontal", 1, 2, 5, 2))
sketch11.addConstraint(Sketcher.Constraint("Horizontal", 3, 2, 7, 2))
sketch11.addConstraint(Sketcher.Constraint("Horizontal", 11, 2, 15, 2))
sketch11.addConstraint(Sketcher.Constraint("Horizontal", 13, 2, 17, 2))
sketch11.addConstraint(Sketcher.Constraint("Vertical", 9, 3, 14, 3))
sketch11.addConstraint(Sketcher.Constraint("Vertical", 4, 3, 19, 3))
sketch11.addConstraint(Sketcher.Constraint("Vertical", 8, 2, 10, 2))
sketch11.addConstraint(Sketcher.Constraint("Vertical", 7, 2, 11, 2))
sketch11.addConstraint(Sketcher.Constraint("Vertical", 3, 2, 15, 2))
sketch11.addConstraint(Sketcher.Constraint("Vertical", 2, 2, 16, 2))
sketch11.addConstraint(Sketcher.Constraint("Equal", 3, 6))
sketch11.addConstraint(Sketcher.Constraint("Equal", 18, 0))
sketch11.addConstraint(Sketcher.Constraint("Equal", 7, 10))
sketch11.addConstraint(Sketcher.Constraint("Diameter", 4, Q("2.1 mm")))
sketch11.addConstraint(Sketcher.Constraint("DistanceX", 1, 1, 1, 2, Q("5 mm")))
sketch11.addConstraint(Sketcher.Constraint("DistanceX", 9, 3, 4, 3, Q("85 mm")))
sketch11.addConstraint(Sketcher.Constraint("DistanceY", 14, 3, 9, 3, Q("65 mm")))
sketch11.addConstraint(Sketcher.Constraint("DistanceX", 5, 2, 0, 2, Q("85 mm")))
sketch11.addConstraint(Sketcher.Constraint("DistanceY", 10, 2, 5, 2, Q("65 mm")))
sketch11.addConstraint(Sketcher.Constraint("DistanceX", 0, 2, 4, 3, Q("2.5 mm")))
sketch11.addConstraint(Sketcher.Constraint("DistanceY", 0, 2, 4, 3, Q("2.5 mm")))
sketch11.addConstraint(Sketcher.Constraint("DistanceX", -1, 1, 4, 3, Q("11.991098 mm")))
sketch11.addConstraint(Sketcher.Constraint("DistanceY", -1, 1, 4, 3, Q("28.089888 mm")))
pad2 = body.newObject("PartDesign::Pad", "Pad001")
pad2.Profile = sketch11
pad2.Length = 5

sketch12 = body.newObject("Sketcher::SketchObject", "Sketch011")
sketch12.AttachmentSupport = (doc.getObject("XY_Plane"), [""])
sketch12.MapMode = "FlatFace"
sketch12.AttachmentOffset = App.Placement(V(0, 0, 70), App.Rotation())
sketch12.addGeometry(Part.LineSegment(V(-75.508902, 25.589888, 0), V(-75.508902, -34.410112, 0)), False)
sketch12.addGeometry(Part.LineSegment(V(-75.508902, -34.410112, 0), V(14.491098, -34.410112, 0)), False)
sketch12.addGeometry(Part.LineSegment(V(14.491098, -34.410112, 0), V(14.491098, 25.589888, 0)), False)
sketch12.addGeometry(Part.LineSegment(V(14.491098, 25.589888, 0), V(-75.508902, 25.589888, 0)), False)
sketch12.addConstraint(Sketcher.Constraint("Coincident", 0, 2, 1, 1))
sketch12.addConstraint(Sketcher.Constraint("Coincident", 1, 2, 2, 1))
sketch12.addConstraint(Sketcher.Constraint("Coincident", 2, 2, 3, 1))
sketch12.addConstraint(Sketcher.Constraint("Coincident", 3, 2, 0, 1))
sketch12.addConstraint(Sketcher.Constraint("Vertical", 0))
sketch12.addConstraint(Sketcher.Constraint("Horizontal", 1))
sketch12.addConstraint(Sketcher.Constraint("Vertical", 2))
sketch12.addConstraint(Sketcher.Constraint("Horizontal", 3))
sketch12.addConstraint(Sketcher.Constraint("DistanceX", 1, 1, 1, 2, Q("90 mm")))
sketch12.addConstraint(Sketcher.Constraint("DistanceY", 0, 2, 0, 1, Q("60 mm")))
sketch12.addConstraint(Sketcher.Constraint("DistanceX", 0, 2, -1, 1, Q("75.508902 mm")))
sketch12.addConstraint(Sketcher.Constraint("DistanceY", 0, 2, -1, 1, Q("34.410112 mm")))
pad3 = body.newObject("PartDesign::Pad", "Pad002")
pad3.Profile = sketch12
pad3.Length = 2

sketch13 = body.newObject("Sketcher::SketchObject", "Sketch012")
sketch13.AttachmentSupport = (doc.getObject("YZ_Plane"), [""])
sketch13.MapMode = "FlatFace"
sketch13.AttachmentOffset = App.Placement(V(0, 0, 14.491098), App.Rotation())
sketch13.addGeometry(Part.Circle(V(-21.410112, 60, 0), V(0, 0, 1), 4), False)
sketch13.addGeometry(Part.Circle(V(12.589888, 17, 0), V(0, 0, 1), 4), False)
sketch13.addConstraint(Sketcher.Constraint("Equal", 0, 1))
sketch13.addConstraint(Sketcher.Constraint("Diameter", 0, Q("8 mm")))
sketch13.addConstraint(Sketcher.Constraint("DistanceY", -1, 1, 0, 3, Q("60 mm")))
sketch13.addConstraint(Sketcher.Constraint("DistanceY", -1, 1, 1, 3, Q("17 mm")))
sketch13.addConstraint(Sketcher.Constraint("DistanceX", 0, 3, 1, 3, Q("34 mm")))
sketch13.addConstraint(Sketcher.Constraint("DistanceX", 0, 3, -1, 1, Q("21.410112 mm")))
pocket10 = body.newObject("PartDesign::Pocket", "Pocket009")
pocket10.Profile = sketch13
pocket10.Length = 10

sketch14 = body.newObject("Sketcher::SketchObject", "Sketch013")
sketch14.AttachmentSupport = (doc.getObject("XY_Plane"), [""])
sketch14.MapMode = "FlatFace"
sketch14.AttachmentOffset = App.Placement(V(0, 0, 7), App.Rotation())
sketch14.addGeometry(Part.LineSegment(V(12.491098, 23.589888, 0), V(12.491098, -32.410112, 0)), False)
sketch14.addGeometry(Part.LineSegment(V(12.491098, -32.410112, 0), V(-73.508902, -32.410112, 0)), False)
sketch14.addGeometry(Part.LineSegment(V(-73.508902, -32.410112, 0), V(-73.508902, 23.589888, 0)), False)
sketch14.addGeometry(Part.LineSegment(V(-73.508902, 23.589888, 0), V(12.491098, 23.589888, 0)), False)
sketch14.addConstraint(Sketcher.Constraint("Coincident", 0, 2, 1, 1))
sketch14.addConstraint(Sketcher.Constraint("Coincident", 1, 2, 2, 1))
sketch14.addConstraint(Sketcher.Constraint("Coincident", 2, 2, 3, 1))
sketch14.addConstraint(Sketcher.Constraint("Coincident", 3, 2, 0, 1))
sketch14.addConstraint(Sketcher.Constraint("Vertical", 0))
sketch14.addConstraint(Sketcher.Constraint("Horizontal", 1))
sketch14.addConstraint(Sketcher.Constraint("Vertical", 2))
sketch14.addConstraint(Sketcher.Constraint("Horizontal", 3))
sketch14.addConstraint(Sketcher.Constraint("DistanceX", 1, 2, 1, 1, Q("86 mm")))
sketch14.addConstraint(Sketcher.Constraint("DistanceY", 0, 2, 0, 1, Q("56 mm")))
sketch14.addConstraint(Sketcher.Constraint("DistanceX", -1, 1, 0, 2, Q("12.491098 mm")))
sketch14.addConstraint(Sketcher.Constraint("DistanceY", 0, 2, -1, 1, Q("32.410112 mm")))
pocket11 = body.newObject("PartDesign::Pocket", "Pocket010")
pocket11.Profile = sketch14
pocket11.Length = 63
pocket11.Reversed = True

doc.recompute()
